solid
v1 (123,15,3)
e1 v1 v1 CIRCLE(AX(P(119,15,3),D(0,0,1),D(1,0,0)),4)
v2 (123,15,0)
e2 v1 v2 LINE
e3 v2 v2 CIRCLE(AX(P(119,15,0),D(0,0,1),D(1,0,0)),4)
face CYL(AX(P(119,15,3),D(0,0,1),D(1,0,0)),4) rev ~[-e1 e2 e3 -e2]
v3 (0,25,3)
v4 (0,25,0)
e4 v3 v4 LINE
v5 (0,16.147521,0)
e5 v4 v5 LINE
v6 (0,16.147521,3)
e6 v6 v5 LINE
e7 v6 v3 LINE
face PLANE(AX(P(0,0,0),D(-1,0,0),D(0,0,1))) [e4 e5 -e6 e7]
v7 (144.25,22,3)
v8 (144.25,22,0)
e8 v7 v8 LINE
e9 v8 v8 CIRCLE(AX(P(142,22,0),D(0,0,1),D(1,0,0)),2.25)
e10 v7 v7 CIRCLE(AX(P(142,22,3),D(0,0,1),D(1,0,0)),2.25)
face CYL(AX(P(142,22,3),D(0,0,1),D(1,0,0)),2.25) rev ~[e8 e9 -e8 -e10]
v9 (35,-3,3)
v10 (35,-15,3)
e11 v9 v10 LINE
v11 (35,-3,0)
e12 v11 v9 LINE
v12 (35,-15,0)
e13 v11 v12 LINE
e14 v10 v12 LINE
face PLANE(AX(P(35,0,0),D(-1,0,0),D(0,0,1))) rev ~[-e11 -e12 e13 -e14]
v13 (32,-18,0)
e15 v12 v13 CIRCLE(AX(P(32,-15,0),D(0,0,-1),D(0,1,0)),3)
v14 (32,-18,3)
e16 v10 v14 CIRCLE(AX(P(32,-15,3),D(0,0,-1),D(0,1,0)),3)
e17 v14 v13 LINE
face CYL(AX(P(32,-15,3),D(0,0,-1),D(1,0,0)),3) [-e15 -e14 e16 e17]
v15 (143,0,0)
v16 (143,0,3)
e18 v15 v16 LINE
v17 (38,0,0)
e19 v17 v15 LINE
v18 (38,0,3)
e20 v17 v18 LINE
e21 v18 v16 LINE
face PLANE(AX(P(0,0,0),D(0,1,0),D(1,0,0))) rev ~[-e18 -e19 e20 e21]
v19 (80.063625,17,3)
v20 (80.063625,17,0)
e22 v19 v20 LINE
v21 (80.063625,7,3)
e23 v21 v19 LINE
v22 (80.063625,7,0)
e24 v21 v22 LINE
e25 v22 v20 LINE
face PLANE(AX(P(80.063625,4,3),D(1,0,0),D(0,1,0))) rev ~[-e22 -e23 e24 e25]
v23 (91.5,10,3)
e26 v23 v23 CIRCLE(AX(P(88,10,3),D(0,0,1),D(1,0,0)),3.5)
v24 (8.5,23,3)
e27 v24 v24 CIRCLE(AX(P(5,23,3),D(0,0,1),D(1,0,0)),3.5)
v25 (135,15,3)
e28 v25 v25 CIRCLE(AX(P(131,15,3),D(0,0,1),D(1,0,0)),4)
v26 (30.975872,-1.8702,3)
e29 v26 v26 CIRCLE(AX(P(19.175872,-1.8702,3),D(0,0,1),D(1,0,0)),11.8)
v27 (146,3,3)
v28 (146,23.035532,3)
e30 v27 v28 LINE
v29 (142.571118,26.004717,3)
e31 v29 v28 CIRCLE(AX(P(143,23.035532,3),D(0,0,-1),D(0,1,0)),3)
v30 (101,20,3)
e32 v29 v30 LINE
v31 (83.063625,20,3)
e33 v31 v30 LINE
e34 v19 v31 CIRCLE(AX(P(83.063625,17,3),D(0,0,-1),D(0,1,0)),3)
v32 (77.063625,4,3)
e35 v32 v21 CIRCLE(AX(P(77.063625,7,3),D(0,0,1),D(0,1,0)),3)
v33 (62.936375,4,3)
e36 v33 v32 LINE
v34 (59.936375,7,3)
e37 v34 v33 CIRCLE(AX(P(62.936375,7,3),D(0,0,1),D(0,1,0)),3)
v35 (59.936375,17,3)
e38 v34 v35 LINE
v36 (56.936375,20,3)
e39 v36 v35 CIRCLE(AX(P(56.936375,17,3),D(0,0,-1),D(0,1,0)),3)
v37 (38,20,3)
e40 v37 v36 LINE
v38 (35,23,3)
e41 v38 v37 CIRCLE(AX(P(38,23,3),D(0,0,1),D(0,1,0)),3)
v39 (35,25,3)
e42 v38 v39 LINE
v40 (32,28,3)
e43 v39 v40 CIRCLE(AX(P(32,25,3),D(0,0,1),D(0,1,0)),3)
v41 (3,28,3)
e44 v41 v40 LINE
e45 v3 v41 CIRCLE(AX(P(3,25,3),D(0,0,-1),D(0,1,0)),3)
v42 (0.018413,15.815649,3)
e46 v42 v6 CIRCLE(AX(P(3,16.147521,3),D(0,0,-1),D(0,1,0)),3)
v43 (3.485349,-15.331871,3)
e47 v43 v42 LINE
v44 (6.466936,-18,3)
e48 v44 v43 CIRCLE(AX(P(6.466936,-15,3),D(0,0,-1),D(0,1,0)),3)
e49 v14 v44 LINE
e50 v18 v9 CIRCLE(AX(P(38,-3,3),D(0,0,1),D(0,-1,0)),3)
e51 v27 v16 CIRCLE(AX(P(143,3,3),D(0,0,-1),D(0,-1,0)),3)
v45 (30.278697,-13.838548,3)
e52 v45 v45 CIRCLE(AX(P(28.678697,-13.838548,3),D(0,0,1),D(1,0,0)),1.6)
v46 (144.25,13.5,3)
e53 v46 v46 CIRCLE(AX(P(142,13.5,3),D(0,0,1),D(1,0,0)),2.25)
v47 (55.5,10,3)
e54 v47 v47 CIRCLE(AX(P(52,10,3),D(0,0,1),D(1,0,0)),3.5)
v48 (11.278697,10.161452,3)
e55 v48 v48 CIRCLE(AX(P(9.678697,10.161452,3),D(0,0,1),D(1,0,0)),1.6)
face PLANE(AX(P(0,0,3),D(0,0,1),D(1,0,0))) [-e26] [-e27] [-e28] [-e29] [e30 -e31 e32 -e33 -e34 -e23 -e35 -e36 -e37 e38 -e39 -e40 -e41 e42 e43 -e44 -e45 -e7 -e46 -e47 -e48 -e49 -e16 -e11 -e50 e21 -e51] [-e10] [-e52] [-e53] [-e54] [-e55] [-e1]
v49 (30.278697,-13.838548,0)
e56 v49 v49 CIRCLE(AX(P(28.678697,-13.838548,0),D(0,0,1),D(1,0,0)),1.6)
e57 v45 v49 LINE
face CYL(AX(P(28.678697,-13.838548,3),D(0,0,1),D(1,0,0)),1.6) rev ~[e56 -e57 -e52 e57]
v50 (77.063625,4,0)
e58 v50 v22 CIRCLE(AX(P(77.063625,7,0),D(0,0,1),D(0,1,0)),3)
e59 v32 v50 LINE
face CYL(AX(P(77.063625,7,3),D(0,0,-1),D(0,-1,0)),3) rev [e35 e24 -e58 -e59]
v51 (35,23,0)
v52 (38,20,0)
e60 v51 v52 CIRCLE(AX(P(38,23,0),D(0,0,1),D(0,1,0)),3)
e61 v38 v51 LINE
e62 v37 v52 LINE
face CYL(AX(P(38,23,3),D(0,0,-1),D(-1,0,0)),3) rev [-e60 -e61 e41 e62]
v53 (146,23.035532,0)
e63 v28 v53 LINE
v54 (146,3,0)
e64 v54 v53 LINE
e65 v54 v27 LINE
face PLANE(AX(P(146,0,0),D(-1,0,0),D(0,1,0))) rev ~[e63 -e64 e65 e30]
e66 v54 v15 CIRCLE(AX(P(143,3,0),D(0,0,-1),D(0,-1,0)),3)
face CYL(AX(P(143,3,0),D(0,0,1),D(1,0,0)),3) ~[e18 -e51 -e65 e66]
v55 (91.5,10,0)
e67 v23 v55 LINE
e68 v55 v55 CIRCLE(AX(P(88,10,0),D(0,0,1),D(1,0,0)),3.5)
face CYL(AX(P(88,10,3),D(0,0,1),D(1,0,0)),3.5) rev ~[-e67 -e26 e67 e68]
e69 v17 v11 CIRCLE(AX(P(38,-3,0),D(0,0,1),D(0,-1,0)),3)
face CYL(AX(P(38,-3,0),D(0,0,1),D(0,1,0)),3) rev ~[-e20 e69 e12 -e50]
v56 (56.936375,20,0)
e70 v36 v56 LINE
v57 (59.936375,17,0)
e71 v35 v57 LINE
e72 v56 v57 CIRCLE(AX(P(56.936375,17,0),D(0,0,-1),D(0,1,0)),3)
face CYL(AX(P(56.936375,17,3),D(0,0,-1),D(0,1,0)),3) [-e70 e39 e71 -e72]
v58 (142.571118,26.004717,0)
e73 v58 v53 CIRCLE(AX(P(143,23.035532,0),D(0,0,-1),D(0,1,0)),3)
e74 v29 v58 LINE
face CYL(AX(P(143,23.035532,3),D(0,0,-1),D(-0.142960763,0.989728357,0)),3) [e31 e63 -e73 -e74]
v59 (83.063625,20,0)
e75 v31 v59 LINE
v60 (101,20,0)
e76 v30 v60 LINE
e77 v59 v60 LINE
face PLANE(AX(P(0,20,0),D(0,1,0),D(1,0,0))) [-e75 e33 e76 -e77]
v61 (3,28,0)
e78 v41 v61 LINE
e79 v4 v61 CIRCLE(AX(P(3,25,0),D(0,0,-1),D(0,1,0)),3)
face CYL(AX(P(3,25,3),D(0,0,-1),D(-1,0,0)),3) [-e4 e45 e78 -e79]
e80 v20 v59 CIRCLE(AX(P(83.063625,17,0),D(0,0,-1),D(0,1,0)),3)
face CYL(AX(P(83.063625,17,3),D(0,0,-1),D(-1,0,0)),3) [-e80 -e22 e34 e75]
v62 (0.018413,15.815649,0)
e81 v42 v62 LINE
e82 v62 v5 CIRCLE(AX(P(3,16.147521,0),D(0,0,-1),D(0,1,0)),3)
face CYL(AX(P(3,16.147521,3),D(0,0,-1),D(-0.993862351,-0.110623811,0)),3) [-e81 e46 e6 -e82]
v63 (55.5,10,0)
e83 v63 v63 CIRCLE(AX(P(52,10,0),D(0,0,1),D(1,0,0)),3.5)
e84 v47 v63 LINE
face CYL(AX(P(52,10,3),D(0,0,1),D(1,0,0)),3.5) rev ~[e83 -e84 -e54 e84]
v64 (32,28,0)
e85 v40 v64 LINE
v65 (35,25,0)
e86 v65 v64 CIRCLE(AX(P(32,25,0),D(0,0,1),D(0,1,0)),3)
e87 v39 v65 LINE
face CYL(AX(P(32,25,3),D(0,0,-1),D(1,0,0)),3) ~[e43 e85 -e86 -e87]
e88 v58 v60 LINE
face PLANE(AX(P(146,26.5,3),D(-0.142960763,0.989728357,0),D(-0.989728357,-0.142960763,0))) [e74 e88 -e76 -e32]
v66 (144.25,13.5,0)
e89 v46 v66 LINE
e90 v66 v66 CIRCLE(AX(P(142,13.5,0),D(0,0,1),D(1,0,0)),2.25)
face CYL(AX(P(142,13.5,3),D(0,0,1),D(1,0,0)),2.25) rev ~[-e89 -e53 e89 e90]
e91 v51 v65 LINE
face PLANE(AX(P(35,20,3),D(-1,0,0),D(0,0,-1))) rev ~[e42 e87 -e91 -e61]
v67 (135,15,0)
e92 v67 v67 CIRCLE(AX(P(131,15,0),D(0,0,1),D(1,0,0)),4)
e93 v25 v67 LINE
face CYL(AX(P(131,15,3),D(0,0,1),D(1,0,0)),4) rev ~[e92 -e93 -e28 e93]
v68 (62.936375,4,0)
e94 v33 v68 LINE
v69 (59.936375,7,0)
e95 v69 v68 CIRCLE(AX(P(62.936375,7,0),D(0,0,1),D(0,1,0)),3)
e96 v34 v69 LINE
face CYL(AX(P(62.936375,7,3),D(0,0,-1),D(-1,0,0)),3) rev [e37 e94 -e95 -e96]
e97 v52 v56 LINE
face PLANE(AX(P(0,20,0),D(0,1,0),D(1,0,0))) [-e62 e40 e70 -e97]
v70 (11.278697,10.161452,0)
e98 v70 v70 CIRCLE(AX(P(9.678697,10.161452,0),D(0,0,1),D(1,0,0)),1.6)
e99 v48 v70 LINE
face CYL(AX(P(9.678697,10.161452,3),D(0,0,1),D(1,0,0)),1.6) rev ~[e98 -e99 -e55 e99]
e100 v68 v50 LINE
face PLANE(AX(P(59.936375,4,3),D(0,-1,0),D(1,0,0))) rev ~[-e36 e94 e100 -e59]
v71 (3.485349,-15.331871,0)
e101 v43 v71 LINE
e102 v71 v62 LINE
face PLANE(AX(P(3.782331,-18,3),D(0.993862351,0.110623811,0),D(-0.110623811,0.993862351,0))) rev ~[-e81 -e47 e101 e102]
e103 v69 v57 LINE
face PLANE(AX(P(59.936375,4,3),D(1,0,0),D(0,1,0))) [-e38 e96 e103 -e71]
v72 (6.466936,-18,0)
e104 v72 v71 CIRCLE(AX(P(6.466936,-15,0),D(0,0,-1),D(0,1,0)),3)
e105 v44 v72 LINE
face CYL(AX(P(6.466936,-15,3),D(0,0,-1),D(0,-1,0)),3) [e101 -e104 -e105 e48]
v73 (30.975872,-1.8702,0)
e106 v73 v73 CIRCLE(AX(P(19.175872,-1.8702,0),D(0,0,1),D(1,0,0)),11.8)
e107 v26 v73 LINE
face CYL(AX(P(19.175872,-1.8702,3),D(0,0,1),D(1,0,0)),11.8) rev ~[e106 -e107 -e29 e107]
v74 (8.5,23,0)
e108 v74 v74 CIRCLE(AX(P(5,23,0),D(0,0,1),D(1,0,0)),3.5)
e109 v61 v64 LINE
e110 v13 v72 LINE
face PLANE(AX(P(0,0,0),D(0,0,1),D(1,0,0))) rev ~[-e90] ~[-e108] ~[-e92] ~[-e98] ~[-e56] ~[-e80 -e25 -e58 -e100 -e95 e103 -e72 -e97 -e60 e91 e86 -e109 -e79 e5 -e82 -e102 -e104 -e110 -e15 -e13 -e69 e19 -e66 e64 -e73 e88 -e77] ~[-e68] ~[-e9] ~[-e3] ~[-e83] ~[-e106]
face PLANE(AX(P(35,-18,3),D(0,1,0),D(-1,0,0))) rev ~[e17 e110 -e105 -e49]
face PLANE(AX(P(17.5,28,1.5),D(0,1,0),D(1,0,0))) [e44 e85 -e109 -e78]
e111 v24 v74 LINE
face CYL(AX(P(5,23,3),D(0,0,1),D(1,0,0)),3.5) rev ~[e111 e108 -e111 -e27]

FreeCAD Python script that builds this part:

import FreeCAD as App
import Part
import Sketcher


def edges_at(feature, points):
    """Names of the edges that pass closest to the given points."""
    edges = feature.Shape.Edges
    near = lambda p: min(range(len(edges)), key=lambda i: edges[i].distToShape(Part.Vertex(*p))[0])
    return sorted({f"Edge{near(p) + 1}" for p in points})


def add_polygon(sketch, points):
    """Adds a closed chain of lines whose ends are joined by coincident constraints."""
    first, n = sketch.GeometryCount, len(points)
    for a, b in zip(points, points[1:] + points[:1]):
        sketch.addGeometry(Part.LineSegment(App.Vector(*a, 0), App.Vector(*b, 0)), False)
    for i in range(n):
        sketch.addConstraint(Sketcher.Constraint("Coincident", first + i, 2, first + (i + 1) % n, 1))

doc = App.newDocument("Part")
body = doc.addObject("PartDesign::Body", "Body")

# Sketch on XY plane
sketch1 = body.newObject("Sketcher::SketchObject", "Sketch")
sketch1.AttachmentSupport = (doc.getObject("XY_Plane"), [""])
sketch1.MapMode = "FlatFace"
add_polygon(sketch1, [(0, 20), (0, 0), (146, 0), (146, 20)])  # lines 0-3
sketch1.addConstraint([
    Sketcher.Constraint("Vertical", 0),
    Sketcher.Constraint("Horizontal", 1),
    Sketcher.Constraint("Vertical", 2),
    Sketcher.Constraint("Horizontal", 3),
    Sketcher.Constraint("Coincident", 0, 2, -1, 1),
    Sketcher.Constraint("DistanceX", 1, 1, 1, 2, 146.0),
    Sketcher.Constraint("DistanceY", 0, 2, 0, 1, 20.0),
])
pad1 = body.newObject("PartDesign::Pad", "Pad")
pad1.Profile = sketch1
pad1.Length = 3

# Sketch on XY plane
sketch2 = body.newObject("Sketcher::SketchObject", "Sketch001")
sketch2.AttachmentSupport = (doc.getObject("XY_Plane"), [""])
sketch2.MapMode = "FlatFace"
sketch2.AttachmentOffset = App.Placement(App.Vector(0, 0, 3), App.Rotation())
sketch2.addGeometry([
    Part.Circle(App.Vector(52, 10, 0), App.Vector(0, 0, 1), 3.5),
    Part.Circle(App.Vector(88, 10, 0), App.Vector(0, 0, 1), 3.5),
], False)
sketch2.addConstraint([
    Sketcher.Constraint("Equal", 0, 1),
    Sketcher.Constraint("Horizontal", 0, 3, 1, 3),
    Sketcher.Constraint("Diameter", 0, 7.0),
    Sketcher.Constraint("DistanceX", -1, 1, 0, 3, 52.0),
    Sketcher.Constraint("DistanceY", -1, 1, 0, 3, 10.0),
    Sketcher.Constraint("DistanceX", -1, 1, 1, 3, 88.0),
])
pocket1 = body.newObject("PartDesign::Pocket", "Pocket")
pocket1.Profile = sketch2
pocket1.Type = "ThroughAll"

# Sketch on XZ plane
sketch3 = body.newObject("Sketcher::SketchObject", "Sketch002")
sketch3.AttachmentSupport = (doc.getObject("XZ_Plane"), [""])
sketch3.MapMode = "FlatFace"
sketch3.AttachmentOffset = App.Placement(App.Vector(0, 0, -20), App.Rotation())
add_polygon(sketch3, [(0, 0), (0, 3), (35, 3), (35, 0)])  # lines 0-3
sketch3.addConstraint([
    Sketcher.Constraint("Vertical", 0),
    Sketcher.Constraint("Horizontal", 1),
    Sketcher.Constraint("Vertical", 2),
    Sketcher.Constraint("Horizontal", 3),
    Sketcher.Constraint("Coincident", 3, 2, -1, 1),
    Sketcher.Constraint("DistanceX", 1, 1, 1, 2, 35.0),
    Sketcher.Constraint("DistanceY", 0, 1, 0, 2, 3.0),
])
pad2 = body.newObject("PartDesign::Pad", "Pad001")
pad2.Profile = sketch3
pad2.Length = 8
pad2.Reversed = True

# Sketch on XY plane
sketch4 = body.newObject("Sketcher::SketchObject", "Sketch003")
sketch4.AttachmentSupport = (doc.getObject("XY_Plane"), [""])
sketch4.MapMode = "FlatFace"
sketch4.AttachmentOffset = App.Placement(App.Vector(0, 0, 3), App.Rotation())
sketch4.addGeometry(Part.Circle(App.Vector(5, 23, 0), App.Vector(0, 0, 1), 3.5), False)
sketch4.addConstraint([
    Sketcher.Constraint("Diameter", 0, 7.0),
    Sketcher.Constraint("DistanceX", -1, 1, 0, 3, 5.0),
    Sketcher.Constraint("DistanceY", -1, 1, 0, 3, 23.0),
])
pocket2 = body.newObject("PartDesign::Pocket", "Pocket001")
pocket2.Profile = sketch4
pocket2.Length = 8

# Sketch on XZ plane
sketch5 = body.newObject("Sketcher::SketchObject", "Sketch004")
sketch5.AttachmentSupport = (doc.getObject("XZ_Plane"), [""])
sketch5.MapMode = "FlatFace"
add_polygon(sketch5, [(0, 3), (0, 0), (35, 0), (35, 3)])  # lines 0-3
sketch5.addConstraint([
    Sketcher.Constraint("Vertical", 0),
    Sketcher.Constraint("Horizontal", 1),
    Sketcher.Constraint("Vertical", 2),
    Sketcher.Constraint("Horizontal", 3),
    Sketcher.Constraint("Coincident", 0, 2, -1, 1),
    Sketcher.Constraint("DistanceX", 1, 1, 1, 2, 35.0),
    Sketcher.Constraint("DistanceY", 0, 2, 0, 1, 3.0),
])
pad3 = body.newObject("PartDesign::Pad", "Pad002")
pad3.Profile = sketch5
pad3.Length = 24
doc.recompute()

fillet = body.newObject("PartDesign::Fillet", "Fillet")
fillet.Base = (pad3, edges_at(pad3, [
    (35, 20, 1.5),
    (0, 28, 1.5),
    (35, 28, 1.5),
    (35, -24, 1.5),
    (0, -24, 1.5),
    (35, 0, 1.5),
    (146, 20, 1.5),
    (146, 0, 1.5),
]))
fillet.Radius = 3

# Sketch on XY plane
sketch6 = body.newObject("Sketcher::SketchObject", "Sketch005")
sketch6.AttachmentSupport = (doc.getObject("XY_Plane"), [""])
sketch6.MapMode = "FlatFace"
sketch6.AttachmentOffset = App.Placement(App.Vector(0, 0, 3), App.Rotation())
add_polygon(sketch6, [(60, 20), (60, 4), (80, 4), (80, 20)])  # lines 0-3
sketch6.addConstraint([
    Sketcher.Constraint("Vertical", 0),
    Sketcher.Constraint("Horizontal", 1),
    Sketcher.Constraint("Vertical", 2),
    Sketcher.Constraint("Horizontal", 3),
    Sketcher.Constraint("DistanceY", 0, 2, 0, 1, 16.0),
    Sketcher.Constraint("DistanceY", -1, 1, 0, 2, 4.0),
    Sketcher.Constraint("DistanceX", 1, 1, 1, 2, 20.127249),
    Sketcher.Constraint("DistanceX", -1, 1, 0, 2, 59.936375),
])
pocket3 = body.newObject("PartDesign::Pocket", "Pocket002")
pocket3.Profile = sketch6
pocket3.Length = 24
doc.recompute()

fillet2 = body.newObject("PartDesign::Fillet", "Fillet001")
fillet2.Base = (pocket3, edges_at(pocket3, [
    (80.064, 20, 1.5),
    (80.064, 4, 1.5),
    (59.936, 4, 1.5),
    (59.936, 20, 1.5),
]))
fillet2.Radius = 3

# Sketch on XY plane
sketch7 = body.newObject("Sketcher::SketchObject", "Sketch006")
sketch7.AttachmentSupport = (doc.getObject("XY_Plane"), [""])
sketch7.MapMode = "FlatFace"
sketch7.AttachmentOffset = App.Placement(App.Vector(0, 0, 3), App.Rotation())
add_polygon(sketch7, [(146, 10), (146, 26), (101, 20)])  # lines 0-2
sketch7.addConstraint([
    Sketcher.Constraint("Vertical", 0),
    Sketcher.Constraint("DistanceY", 0, 1, 0, 2, 16.5),
    Sketcher.Constraint("DistanceX", -1, 1, 0, 2, 146.0),
    Sketcher.Constraint("DistanceX", -1, 1, 1, 2, 101.0),
    Sketcher.Constraint("DistanceY", -1, 1, 1, 2, 20.0),
    Sketcher.Constraint("DistanceY", -1, 1, 2, 2, 10.0),
])
pad4 = body.newObject("PartDesign::Pad", "Pad003")
pad4.Profile = sketch7
pad4.Length = 3
pad4.Reversed = True

# Sketch on XY plane
sketch8 = body.newObject("Sketcher::SketchObject", "Sketch007")
sketch8.AttachmentSupport = (doc.getObject("XY_Plane"), [""])
sketch8.MapMode = "FlatFace"
sketch8.AttachmentOffset = App.Placement(App.Vector(0, 0, 3), App.Rotation())
sketch8.addGeometry([
    Part.Circle(App.Vector(142, 22, 0), App.Vector(0, 0, 1), 2.2),
    Part.Circle(App.Vector(142, 13.5, 0), App.Vector(0, 0, 1), 2.2),
], False)
sketch8.addConstraint([
    Sketcher.Constraint("Equal", 0, 1),
    Sketcher.Constraint("Vertical", 0, 3, 1, 3),
    Sketcher.Constraint("Diameter", 0, 4.5),
    Sketcher.Constraint("DistanceX", -1, 1, 0, 3, 142.0),
    Sketcher.Constraint("DistanceY", -1, 1, 0, 3, 22.0),
    Sketcher.Constraint("DistanceY", -1, 1, 1, 3, 13.5),
])
pocket4 = body.newObject("PartDesign::Pocket", "Pocket003")
pocket4.Profile = sketch8
pocket4.Length = 24
doc.recompute()

fillet3 = body.newObject("PartDesign::Fillet", "Fillet002")
fillet3.Base = (pocket4, edges_at(pocket4, [(146, 26.5, 1.5)]))
fillet3.Radius = 3

# Sketch on XY plane
sketch9 = body.newObject("Sketcher::SketchObject", "Sketch008")
sketch9.AttachmentSupport = (doc.getObject("XY_Plane"), [""])
sketch9.MapMode = "FlatFace"
sketch9.AttachmentOffset = App.Placement(App.Vector(0, 0, 3), App.Rotation())
sketch9.addGeometry([
    Part.Circle(App.Vector(19.2, -1.9, 0), App.Vector(0, 0, 1), 11.8),
    Part.Circle(App.Vector(9.7, 10.2, 0), App.Vector(0, 0, 1), 1.6),
    Part.Circle(App.Vector(28.7, -13.8, 0), App.Vector(0, 0, 1), 1.6),
], False)
sketch9.addConstraint([
    Sketcher.Constraint("Equal", 1, 2),
    Sketcher.Constraint("Diameter", 0, 23.6),
    Sketcher.Constraint("Diameter", 1, 3.2),
    Sketcher.Constraint("DistanceX", 1, 3, 2, 3, 19.0),
    Sketcher.Constraint("DistanceY", 2, 3, 1, 3, 24.0),
    Sketcher.Constraint("DistanceY", 0, 3, -1, 1, 1.8702),
    Sketcher.Constraint("DistanceX", -1, 1, 0, 3, 19.175872),
    Sketcher.Constraint("DistanceY", -1, 1, 1, 3, 10.161452),
    Sketcher.Constraint("DistanceX", -1, 1, 1, 3, 9.678697),
])
pocket5 = body.newObject("PartDesign::Pocket", "Pocket004")
pocket5.Profile = sketch9
pocket5.Length = 3

# Sketch on XY plane
sketch10 = body.newObject("Sketcher::SketchObject", "Sketch009")
sketch10.AttachmentSupport = (doc.getObject("XY_Plane"), [""])
sketch10.MapMode = "FlatFace"
sketch10.AttachmentOffset = App.Placement(App.Vector(0, 0, 3), App.Rotation())
add_polygon(sketch10, [(35, -18), (4, -18), (0, 16), (0, -27), (35, -27)])  # lines 0-4
sketch10.addConstraint([
    Sketcher.Constraint("Horizontal", 0),
    Sketcher.Constraint("Vertical", 2),
    Sketcher.Constraint("Horizontal", 3),
    Sketcher.Constraint("Vertical", 4),
    Sketcher.Constraint("PointOnObject", 1, 2, -2),
    Sketcher.Constraint("DistanceX", 3, 1, 3, 2, 35.0),
    Sketcher.Constraint("DistanceY", 0, 2, -1, 1, 18.0),
    Sketcher.Constraint("DistanceX", 0, 2, 0, 1, 31.217669),
    Sketcher.Constraint("DistanceY", 2, 2, 2, 1, 42.922546),
    Sketcher.Constraint("DistanceY", 4, 1, 4, 2, 8.941472),
])
pocket6 = body.newObject("PartDesign::Pocket", "Pocket005")
pocket6.Profile = sketch10
pocket6.Length = 3
doc.recompute()

fillet4 = body.newObject("PartDesign::Fillet", "Fillet003")
fillet4.Base = (pocket6, edges_at(pocket6, [(35, -18, 1.5), (0, 15.981, 1.5), (3.782, -18, 1.5)]))
fillet4.Radius = 3

# Sketch on XY plane
sketch11 = body.newObject("Sketcher::SketchObject", "Sketch010")
sketch11.AttachmentSupport = (doc.getObject("XY_Plane"), [""])
sketch11.MapMode = "FlatFace"
sketch11.AttachmentOffset = App.Placement(App.Vector(0, 0, 3), App.Rotation())
sketch11.addGeometry([
    Part.Circle(App.Vector(131, 15, 0), App.Vector(0, 0, 1), 4),
    Part.Circle(App.Vector(119, 15, 0), App.Vector(0, 0, 1), 4),
], False)
sketch11.addConstraint([
    Sketcher.Constraint("Equal", 0, 1),
    Sketcher.Constraint("Horizontal", 0, 3, 1, 3),
    Sketcher.Constraint("Diameter", 0, 8.0),
    Sketcher.Constraint("DistanceX", -1, 1, 0, 3, 131.0),
    Sketcher.Constraint("DistanceY", -1, 1, 0, 3, 15.0),
    Sketcher.Constraint("DistanceX", -1, 1, 1, 3, 119.0),
])
pocket7 = body.newObject("PartDesign::Pocket", "Pocket006")
pocket7.Profile = sketch11
pocket7.Length = 3

doc.recompute()
